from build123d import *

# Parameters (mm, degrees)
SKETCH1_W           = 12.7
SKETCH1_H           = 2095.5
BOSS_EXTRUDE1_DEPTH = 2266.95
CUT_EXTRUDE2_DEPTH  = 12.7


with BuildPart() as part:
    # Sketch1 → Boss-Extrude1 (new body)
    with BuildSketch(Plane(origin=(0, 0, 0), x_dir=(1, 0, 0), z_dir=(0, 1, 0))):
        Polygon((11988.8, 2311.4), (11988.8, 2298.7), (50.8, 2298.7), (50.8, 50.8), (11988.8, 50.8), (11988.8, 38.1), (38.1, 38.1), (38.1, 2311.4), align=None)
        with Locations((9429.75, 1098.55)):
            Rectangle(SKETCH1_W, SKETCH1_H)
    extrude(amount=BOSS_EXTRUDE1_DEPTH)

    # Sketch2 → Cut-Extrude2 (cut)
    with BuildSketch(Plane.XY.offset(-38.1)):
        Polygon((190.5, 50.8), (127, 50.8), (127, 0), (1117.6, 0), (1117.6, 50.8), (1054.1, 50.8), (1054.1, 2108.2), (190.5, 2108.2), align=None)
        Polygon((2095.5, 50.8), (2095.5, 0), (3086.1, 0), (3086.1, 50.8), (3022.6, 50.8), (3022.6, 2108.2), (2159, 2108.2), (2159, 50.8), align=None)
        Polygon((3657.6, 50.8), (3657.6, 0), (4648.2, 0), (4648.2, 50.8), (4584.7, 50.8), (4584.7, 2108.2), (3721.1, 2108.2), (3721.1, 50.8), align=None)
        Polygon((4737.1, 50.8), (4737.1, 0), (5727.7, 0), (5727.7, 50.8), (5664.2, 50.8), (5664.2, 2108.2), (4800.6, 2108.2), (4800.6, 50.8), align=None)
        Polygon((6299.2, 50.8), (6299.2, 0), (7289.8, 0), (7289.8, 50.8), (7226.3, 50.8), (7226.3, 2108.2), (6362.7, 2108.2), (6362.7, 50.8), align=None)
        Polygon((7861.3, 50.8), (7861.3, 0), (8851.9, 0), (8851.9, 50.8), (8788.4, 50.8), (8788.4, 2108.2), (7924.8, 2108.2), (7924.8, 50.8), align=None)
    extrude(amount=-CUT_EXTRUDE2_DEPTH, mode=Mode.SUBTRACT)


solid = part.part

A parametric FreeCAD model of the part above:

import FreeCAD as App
import Part
import Sketcher
from FreeCAD import Vector
Q = App.Units.Quantity

doc = App.newDocument("Part")
body = doc.addObject("PartDesign::Body", "Body")

# Sketch on XZ plane
sketch1 = body.newObject("Sketcher::SketchObject", "Sketch")
sketch1.AttachmentSupport = (doc.getObject("XZ_Plane"), [""])
sketch1.MapMode = "FlatFace"
sketch1.addGeometry([
    Part.LineSegment(Vector(11989, -2299, 0), Vector(11989, -2311, 0)),  # 0
    Part.LineSegment(Vector(11989, -2311, 0), Vector(38, -2311, 0)),  # 1
    Part.LineSegment(Vector(38, -2311, 0), Vector(38, -38, 0)),  # 2
    Part.LineSegment(Vector(38, -38, 0), Vector(11989, -38, 0)),  # 3
    Part.LineSegment(Vector(11989, -38, 0), Vector(11989, -51, 0)),  # 4
    Part.LineSegment(Vector(11989, -51, 0), Vector(9436, -51, 0)),  # 5
    Part.LineSegment(Vector(9436, -51, 0), Vector(9436, -2146, 0)),  # 6
    Part.LineSegment(Vector(9436, -2146, 0), Vector(9423, -2146, 0)),  # 7
    Part.LineSegment(Vector(9423, -2146, 0), Vector(9423, -51, 0)),  # 8
    Part.LineSegment(Vector(9423, -51, 0), Vector(51, -51, 0)),  # 9
    Part.LineSegment(Vector(51, -51, 0), Vector(51, -2299, 0)),  # 10
    Part.LineSegment(Vector(51, -2299, 0), Vector(11989, -2299, 0)),  # 11
], False)
sketch1.addConstraint([
    Sketcher.Constraint("Coincident", 0, 2, 1, 1),
    Sketcher.Constraint("Coincident", 1, 2, 2, 1),
    Sketcher.Constraint("Coincident", 2, 2, 3, 1),
    Sketcher.Constraint("Coincident", 3, 2, 4, 1),
    Sketcher.Constraint("Coincident", 4, 2, 5, 1),
    Sketcher.Constraint("Coincident", 5, 2, 6, 1),
    Sketcher.Constraint("Coincident", 6, 2, 7, 1),
    Sketcher.Constraint("Coincident", 7, 2, 8, 1),
    Sketcher.Constraint("Coincident", 8, 2, 9, 1),
    Sketcher.Constraint("Coincident", 9, 2, 10, 1),
    Sketcher.Constraint("Coincident", 10, 2, 11, 1),
    Sketcher.Constraint("Coincident", 11, 2, 0, 1),
    Sketcher.Constraint("Vertical", 0),
    Sketcher.Constraint("Horizontal", 1),
    Sketcher.Constraint("Vertical", 2),
    Sketcher.Constraint("Horizontal", 3),
    Sketcher.Constraint("Vertical", 4),
    Sketcher.Constraint("Horizontal", 5),
    Sketcher.Constraint("Vertical", 6),
    Sketcher.Constraint("Horizontal", 7),
    Sketcher.Constraint("Vertical", 8),
    Sketcher.Constraint("Horizontal", 9),
    Sketcher.Constraint("Vertical", 10),
    Sketcher.Constraint("Horizontal", 11),
    Sketcher.Constraint("Horizontal", 5, 2, 8, 2),
    Sketcher.Constraint("Vertical", 0, 2, 3, 2),
    Sketcher.Constraint("Equal", 7, 0),
    Sketcher.Constraint("Equal", 0, 4),
    Sketcher.Constraint("DistanceX", 9, 2, 9, 1, Q("369 in")),
    Sketcher.Constraint("DistanceX", 11, 1, 11, 2, Q("470 in")),
    Sketcher.Constraint("DistanceX", 1, 2, 1, 1, Q("470.5 in")),
    Sketcher.Constraint("DistanceX", 5, 2, 5, 1, Q("100.5 in")),
    Sketcher.Constraint("DistanceY", 2, 1, 2, 2, Q("89.5 in")),
    Sketcher.Constraint("DistanceY", 6, 2, 6, 1, Q("82.5 in")),
    Sketcher.Constraint("DistanceX", -1, 1, 0, 2, Q("472 in")),
    Sketcher.Constraint("DistanceY", 0, 2, -1, 1, Q("91 in")),
])
pad1 = body.newObject("PartDesign::Pad", "Pad")
pad1.Profile = sketch1
pad1.Length = Q("89.25 in")
pad1.Reversed = True

# Sketch on XY plane
sketch2 = body.newObject("Sketcher::SketchObject", "Sketch001")
sketch2.AttachmentSupport = (doc.getObject("XY_Plane"), [""])
sketch2.MapMode = "FlatFace"
sketch2.AttachmentOffset = App.Placement(Vector(0, 0, -1.5 * 25.4), App.Rotation())
sketch2.addGeometry([
    Part.LineSegment(Vector(190, 51, 0), Vector(127, 51, 0)),  # 0
    Part.LineSegment(Vector(127, 51, 0), Vector(127, 0, 0)),  # 1
    Part.LineSegment(Vector(127, 0, 0), Vector(1118, 0, 0)),  # 2
    Part.LineSegment(Vector(1118, 0, 0), Vector(1118, 51, 0)),  # 3
    Part.LineSegment(Vector(1118, 51, 0), Vector(1054, 51, 0)),  # 4
    Part.LineSegment(Vector(1054, 51, 0), Vector(1054, 2108, 0)),  # 5
    Part.LineSegment(Vector(1054, 2108, 0), Vector(190, 2108, 0)),  # 6
    Part.LineSegment(Vector(190, 2108, 0), Vector(190, 51, 0)),  # 7
    Part.LineSegment(Vector(2096, 51, 0), Vector(2096, 0, 0)),  # 8
    Part.LineSegment(Vector(2096, 0, 0), Vector(3086, 0, 0)),  # 9
    Part.LineSegment(Vector(3086, 0, 0), Vector(3086, 51, 0)),  # 10
    Part.LineSegment(Vector(3086, 51, 0), Vector(3023, 51, 0)),  # 11
    Part.LineSegment(Vector(3023, 51, 0), Vector(3023, 2108, 0)),  # 12
    Part.LineSegment(Vector(3023, 2108, 0), Vector(2159, 2108, 0)),  # 13
    Part.LineSegment(Vector(2159, 2108, 0), Vector(2159, 51, 0)),  # 14
    Part.LineSegment(Vector(2159, 51, 0), Vector(2096, 51, 0)),  # 15
    Part.LineSegment(Vector(3658, 51, 0), Vector(3658, 0, 0)),  # 16
    Part.LineSegment(Vector(3658, 0, 0), Vector(4648, 0, 0)),  # 17
    Part.LineSegment(Vector(4648, 0, 0), Vector(4648, 51, 0)),  # 18
    Part.LineSegment(Vector(4648, 51, 0), Vector(4585, 51, 0)),  # 19
    Part.LineSegment(Vector(4585, 51, 0), Vector(4585, 2108, 0)),  # 20
    Part.LineSegment(Vector(4585, 2108, 0), Vector(3721, 2108, 0)),  # 21
    Part.LineSegment(Vector(3721, 2108, 0), Vector(3721, 51, 0)),  # 22
    Part.LineSegment(Vector(3721, 51, 0), Vector(3658, 51, 0)),  # 23
    Part.LineSegment(Vector(4737, 51, 0), Vector(4737, 0, 0)),  # 24
    Part.LineSegment(Vector(4737, 0, 0), Vector(5728, 0, 0)),  # 25
    Part.LineSegment(Vector(5728, 0, 0), Vector(5728, 51, 0)),  # 26
    Part.LineSegment(Vector(5728, 51, 0), Vector(5664, 51, 0)),  # 27
    Part.LineSegment(Vector(5664, 51, 0), Vector(5664, 2108, 0)),  # 28
    Part.LineSegment(Vector(5664, 2108, 0), Vector(4801, 2108, 0)),  # 29
    Part.LineSegment(Vector(4801, 2108, 0), Vector(4801, 51, 0)),  # 30
    Part.LineSegment(Vector(4801, 51, 0), Vector(4737, 51, 0)),  # 31
    Part.LineSegment(Vector(6299, 51, 0), Vector(6299, 0, 0)),  # 32
    Part.LineSegment(Vector(6299, 0, 0), Vector(7290, 0, 0)),  # 33
    Part.LineSegment(Vector(7290, 0, 0), Vector(7290, 51, 0)),  # 34
    Part.LineSegment(Vector(7290, 51, 0), Vector(7226, 51, 0)),  # 35
    Part.LineSegment(Vector(7226, 51, 0), Vector(7226, 2108, 0)),  # 36
    Part.LineSegment(Vector(7226, 2108, 0), Vector(6363, 2108, 0)),  # 37
    Part.LineSegment(Vector(6363, 2108, 0), Vector(6363, 51, 0)),  # 38
    Part.LineSegment(Vector(6363, 51, 0), Vector(6299, 51, 0)),  # 39
    Part.LineSegment(Vector(7861, 51, 0), Vector(7861, 0, 0)),  # 40
    Part.LineSegment(Vector(7861, 0, 0), Vector(8852, 0, 0)),  # 41
    Part.LineSegment(Vector(8852, 0, 0), Vector(8852, 51, 0)),  # 42
    Part.LineSegment(Vector(8852, 51, 0), Vector(8788, 51, 0)),  # 43
    Part.LineSegment(Vector(8788, 51, 0), Vector(8788, 2108, 0)),  # 44
    Part.LineSegment(Vector(8788, 2108, 0), Vector(7925, 2108, 0)),  # 45
    Part.LineSegment(Vector(7925, 2108, 0), Vector(7925, 51, 0)),  # 46
    Part.LineSegment(Vector(7925, 51, 0), Vector(7861, 51, 0)),  # 47
], False)
sketch2.addConstraint([
    Sketcher.Constraint("Coincident", 0, 2, 1, 1),
    Sketcher.Constraint("Coincident", 1, 2, 2, 1),
    Sketcher.Constraint("Coincident", 2, 2, 3, 1),
    Sketcher.Constraint("Coincident", 3, 2, 4, 1),
    Sketcher.Constraint("Coincident", 4, 2, 5, 1),
    Sketcher.Constraint("Coincident", 5, 2, 6, 1),
    Sketcher.Constraint("Coincident", 6, 2, 7, 1),
    Sketcher.Constraint("Coincident", 7, 2, 0, 1),
    Sketcher.Constraint("Coincident", 8, 2, 9, 1),
    Sketcher.Constraint("Coincident", 9, 2, 10, 1),
    Sketcher.Constraint("Coincident", 10, 2, 11, 1),
    Sketcher.Constraint("Coincident", 11, 2, 12, 1),
    Sketcher.Constraint("Coincident", 12, 2, 13, 1),
    Sketcher.Constraint("Coincident", 13, 2, 14, 1),
    Sketcher.Constraint("Coincident", 14, 2, 15, 1),
    Sketcher.Constraint("Coincident", 15, 2, 8, 1),
    Sketcher.Constraint("Coincident", 16, 2, 17, 1),
    Sketcher.Constraint("Coincident", 17, 2, 18, 1),
    Sketcher.Constraint("Coincident", 18, 2, 19, 1),
    Sketcher.Constraint("Coincident", 19, 2, 20, 1),
    Sketcher.Constraint("Coincident", 20, 2, 21, 1),
    Sketcher.Constraint("Coincident", 21, 2, 22, 1),
    Sketcher.Constraint("Coincident", 22, 2, 23, 1),
    Sketcher.Constraint("Coincident", 23, 2, 16, 1),
    Sketcher.Constraint("Coincident", 24, 2, 25, 1),
    Sketcher.Constraint("Coincident", 25, 2, 26, 1),
    Sketcher.Constraint("Coincident", 26, 2, 27, 1),
    Sketcher.Constraint("Coincident", 27, 2, 28, 1),
    Sketcher.Constraint("Coincident", 28, 2, 29, 1),
    Sketcher.Constraint("Coincident", 29, 2, 30, 1),
    Sketcher.Constraint("Coincident", 30, 2, 31, 1),
    Sketcher.Constraint("Coincident", 31, 2, 24, 1),
    Sketcher.Constraint("Coincident", 32, 2, 33, 1),
    Sketcher.Constraint("Coincident", 33, 2, 34, 1),
    Sketcher.Constraint("Coincident", 34, 2, 35, 1),
    Sketcher.Constraint("Coincident", 35, 2, 36, 1),
    Sketcher.Constraint("Coincident", 36, 2, 37, 1),
    Sketcher.Constraint("Coincident", 37, 2, 38, 1),
    Sketcher.Constraint("Coincident", 38, 2, 39, 1),
    Sketcher.Constraint("Coincident", 39, 2, 32, 1),
    Sketcher.Constraint("Coincident", 40, 2, 41, 1),
    Sketcher.Constraint("Coincident", 41, 2, 42, 1),
    Sketcher.Constraint("Coincident", 42, 2, 43, 1),
    Sketcher.Constraint("Coincident", 43, 2, 44, 1),
    Sketcher.Constraint("Coincident", 44, 2, 45, 1),
    Sketcher.Constraint("Coincident", 45, 2, 46, 1),
    Sketcher.Constraint("Coincident", 46, 2, 47, 1),
    Sketcher.Constraint("Coincident", 47, 2, 40, 1),
    Sketcher.Constraint("Horizontal", 0),
    Sketcher.Constraint("Vertical", 1),
    Sketcher.Constraint("Horizontal", 2),
    Sketcher.Constraint("Vertical", 3),
    Sketcher.Constraint("Horizontal", 4),
    Sketcher.Constraint("Vertical", 5),
    Sketcher.Constraint("Horizontal", 6),
    Sketcher.Constraint("Vertical", 7),
    Sketcher.Constraint("Vertical", 8),
    Sketcher.Constraint("Horizontal", 9),
    Sketcher.Constraint("Vertical", 10),
    Sketcher.Constraint("Horizontal", 11),
    Sketcher.Constraint("Vertical", 12),
    Sketcher.Constraint("Horizontal", 13),
    Sketcher.Constraint("Vertical", 14),
    Sketcher.Constraint("Horizontal", 15),
    Sketcher.Constraint("Vertical", 16),
    Sketcher.Constraint("Horizontal", 17),
    Sketcher.Constraint("Vertical", 18),
    Sketcher.Constraint("Horizontal", 19),
    Sketcher.Constraint("Vertical", 20),
    Sketcher.Constraint("Horizontal", 21),
    Sketcher.Constraint("Vertical", 22),
    Sketcher.Constraint("Horizontal", 23),
    Sketcher.Constraint("Vertical", 24),
    Sketcher.Constraint("Horizontal", 25),
    Sketcher.Constraint("Vertical", 26),
    Sketcher.Constraint("Horizontal", 27),
    Sketcher.Constraint("Vertical", 28),
    Sketcher.Constraint("Horizontal", 29),
    Sketcher.Constraint("Vertical", 30),
    Sketcher.Constraint("Horizontal", 31),
    Sketcher.Constraint("Vertical", 32),
    Sketcher.Constraint("Horizontal", 33),
    Sketcher.Constraint("Vertical", 34),
    Sketcher.Constraint("Horizontal", 35),
    Sketcher.Constraint("Vertical", 36),
    Sketcher.Constraint("Horizontal", 37),
    Sketcher.Constraint("Vertical", 38),
    Sketcher.Constraint("Horizontal", 39),
    Sketcher.Constraint("Vertical", 40),
    Sketcher.Constraint("Horizontal", 41),
    Sketcher.Constraint("Vertical", 42),
    Sketcher.Constraint("Horizontal", 43),
    Sketcher.Constraint("Vertical", 44),
    Sketcher.Constraint("Horizontal", 45),
    Sketcher.Constraint("Vertical", 46),
    Sketcher.Constraint("Horizontal", 47),
    Sketcher.Constraint("PointOnObject", 1, 2, -1),
    Sketcher.Constraint("PointOnObject", 8, 2, -1),
    Sketcher.Constraint("PointOnObject", 16, 2, -1),
    Sketcher.Constraint("PointOnObject", 24, 2, -1),
    Sketcher.Constraint("PointOnObject", 32, 2, -1),
    Sketcher.Constraint("PointOnObject", 40, 2, -1),
    Sketcher.Constraint("Horizontal", 0, 2, 3, 2),
    Sketcher.Constraint("Horizontal", 7, 2, 10, 2),
    Sketcher.Constraint("Horizontal", 6, 2, 12, 2),
    Sketcher.Constraint("Horizontal", 11, 2, 14, 2),
    Sketcher.Constraint("Horizontal", 15, 2, 18, 2),
    Sketcher.Constraint("Horizontal", 13, 2, 20, 2),
    Sketcher.Constraint("Horizontal", 19, 2, 22, 2),
    Sketcher.Constraint("Horizontal", 23, 2, 26, 2),
    Sketcher.Constraint("Horizontal", 21, 2, 28, 2),
    Sketcher.Constraint("Horizontal", 27, 2, 30, 2),
    Sketcher.Constraint("Horizontal", 31, 2, 34, 2),
    Sketcher.Constraint("Horizontal", 29, 2, 36, 2),
    Sketcher.Constraint("Horizontal", 35, 2, 38, 2),
    Sketcher.Constraint("Horizontal", 39, 2, 42, 2),
    Sketcher.Constraint("Horizontal", 37, 2, 44, 2),
    Sketcher.Constraint("Horizontal", 43, 2, 46, 2),
    Sketcher.Constraint("Equal", 0, 4),
    Sketcher.Constraint("Equal", 2, 9),
    Sketcher.Constraint("Equal", 4, 11),
    Sketcher.Constraint("Equal", 6, 13),
    Sketcher.Constraint("Equal", 9, 17),
    Sketcher.Constraint("Equal", 15, 19),
    Sketcher.Constraint("Equal", 13, 21),
    Sketcher.Constraint("Equal", 17, 25),
    Sketcher.Constraint("Equal", 23, 27),
    Sketcher.Constraint("Equal", 21, 29),
    Sketcher.Constraint("Equal", 25, 33),
    Sketcher.Constraint("Equal", 31, 35),
    Sketcher.Constraint("Equal", 29, 37),
    Sketcher.Constraint("Equal", 33, 41),
    Sketcher.Constraint("Equal", 39, 43),
    Sketcher.Constraint("Equal", 37, 45),
    Sketcher.Constraint("DistanceX", 2, 1, 2, 2, Q("39 in")),
    Sketcher.Constraint("DistanceX", 6, 2, 6, 1, Q("34 in")),
    Sketcher.Constraint("DistanceY", 1, 2, 1, 1, Q("2 in")),
    Sketcher.Constraint("DistanceY", 5, 1, 5, 2, Q("81 in")),
    Sketcher.Constraint("DistanceX", -1, 1, 0, 2, Q("5 in")),
    Sketcher.Constraint("DistanceX", -1, 1, 11, 2, Q("119 in")),
    Sketcher.Constraint("DistanceX", -1, 1, 16, 2, Q("144 in")),
    Sketcher.Constraint("DistanceX", -1, 1, 27, 2, Q("223 in")),
    Sketcher.Constraint("DistanceX", -1, 1, 32, 2, Q("248 in")),
    Sketcher.Constraint("DistanceX", -1, 1, 43, 2, Q("346 in")),
])
pocket1 = body.newObject("PartDesign::Pocket", "Pocket")
pocket1.Profile = sketch2
pocket1.Length = Q("0.5 in")

doc.recompute()
